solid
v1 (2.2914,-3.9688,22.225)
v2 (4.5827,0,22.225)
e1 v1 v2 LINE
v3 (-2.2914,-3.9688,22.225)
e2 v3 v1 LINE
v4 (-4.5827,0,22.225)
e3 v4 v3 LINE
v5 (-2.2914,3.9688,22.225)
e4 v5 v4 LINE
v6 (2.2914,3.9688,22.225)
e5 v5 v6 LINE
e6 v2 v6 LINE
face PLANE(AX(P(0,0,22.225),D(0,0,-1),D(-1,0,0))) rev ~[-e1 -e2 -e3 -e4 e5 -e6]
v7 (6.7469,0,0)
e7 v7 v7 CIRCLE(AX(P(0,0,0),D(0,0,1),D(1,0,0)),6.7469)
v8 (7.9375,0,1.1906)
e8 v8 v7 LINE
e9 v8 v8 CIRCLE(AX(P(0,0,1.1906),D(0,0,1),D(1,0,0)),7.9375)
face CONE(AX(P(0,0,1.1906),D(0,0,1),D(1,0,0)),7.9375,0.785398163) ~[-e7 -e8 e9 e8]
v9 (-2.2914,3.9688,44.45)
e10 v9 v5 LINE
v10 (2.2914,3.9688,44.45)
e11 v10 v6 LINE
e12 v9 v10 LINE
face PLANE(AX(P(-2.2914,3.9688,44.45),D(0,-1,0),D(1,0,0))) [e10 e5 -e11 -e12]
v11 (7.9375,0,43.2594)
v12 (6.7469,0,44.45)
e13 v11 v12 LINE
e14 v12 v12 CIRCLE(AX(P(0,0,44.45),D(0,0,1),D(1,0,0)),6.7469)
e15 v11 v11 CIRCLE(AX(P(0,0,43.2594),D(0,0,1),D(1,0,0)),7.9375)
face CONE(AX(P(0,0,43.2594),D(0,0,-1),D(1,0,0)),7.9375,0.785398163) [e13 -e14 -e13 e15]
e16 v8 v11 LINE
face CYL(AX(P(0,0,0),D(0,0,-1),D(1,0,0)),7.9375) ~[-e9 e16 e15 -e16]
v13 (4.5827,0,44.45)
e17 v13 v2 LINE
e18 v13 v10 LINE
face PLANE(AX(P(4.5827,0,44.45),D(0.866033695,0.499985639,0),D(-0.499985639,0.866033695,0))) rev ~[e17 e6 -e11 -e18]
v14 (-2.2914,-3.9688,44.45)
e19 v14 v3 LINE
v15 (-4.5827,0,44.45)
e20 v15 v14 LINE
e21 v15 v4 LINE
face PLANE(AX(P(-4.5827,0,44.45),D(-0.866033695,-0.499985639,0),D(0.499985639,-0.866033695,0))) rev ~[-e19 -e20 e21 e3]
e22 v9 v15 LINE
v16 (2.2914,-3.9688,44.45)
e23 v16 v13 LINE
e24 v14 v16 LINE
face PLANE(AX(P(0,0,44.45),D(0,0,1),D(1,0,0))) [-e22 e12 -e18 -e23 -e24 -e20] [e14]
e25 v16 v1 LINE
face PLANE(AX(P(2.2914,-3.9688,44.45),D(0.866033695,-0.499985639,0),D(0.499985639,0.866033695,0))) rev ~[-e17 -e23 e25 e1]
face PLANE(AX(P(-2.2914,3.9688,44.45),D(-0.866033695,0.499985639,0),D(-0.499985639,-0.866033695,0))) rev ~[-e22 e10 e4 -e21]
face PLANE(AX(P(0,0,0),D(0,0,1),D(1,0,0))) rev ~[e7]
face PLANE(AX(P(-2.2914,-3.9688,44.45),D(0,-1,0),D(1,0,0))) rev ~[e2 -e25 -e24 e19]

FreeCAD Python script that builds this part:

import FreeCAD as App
import Part
import Sketcher
Q = App.Units.Quantity


def edges_at(feature, points):
    """Names of the edges that pass closest to the given points."""
    edges = feature.Shape.Edges
    near = lambda p: min(range(len(edges)), key=lambda i: edges[i].distToShape(Part.Vertex(*p))[0])
    return sorted({f"Edge{near(p) + 1}" for p in points})


def add_polygon(sketch, points):
    """Adds a closed chain of lines whose ends are joined by coincident constraints."""
    first, n = sketch.GeometryCount, len(points)
    for a, b in zip(points, points[1:] + points[:1]):
        sketch.addGeometry(Part.LineSegment(App.Vector(*a, 0), App.Vector(*b, 0)), False)
    for i in range(n):
        sketch.addConstraint(Sketcher.Constraint("Coincident", first + i, 2, first + (i + 1) % n, 1))

doc = App.newDocument("Part")
body = doc.addObject("PartDesign::Body", "Body")

sketch1 = body.newObject("Sketcher::SketchObject", "Sketch")
sketch1.AttachmentSupport = (doc.getObject("XY_Plane"), [""])
sketch1.MapMode = "FlatFace"
sketch1.addGeometry(Part.Circle(App.Vector(0, 0, 0), App.Vector(0, 0, 1), 8), False)
sketch1.addConstraint([
    Sketcher.Constraint("Coincident", 0, 3, -1, 1),
    Sketcher.Constraint("Diameter", 0, Q("0.625 in")),
])
pad1 = body.newObject("PartDesign::Pad", "Pad")
pad1.Profile = sketch1
pad1.Length = Q("1.75 in")
doc.recompute()

chamfer = body.newObject("PartDesign::Chamfer", "Chamfer")
chamfer.Base = (pad1, edges_at(pad1, [(-7.938, 0, 0), (-7.938, 0, 44.45)]))
chamfer.Size = Q("0.046874 in")

sketch2 = body.newObject("Sketcher::SketchObject", "Sketch001")
sketch2.AttachmentSupport = (doc.getObject("XY_Plane"), [""])
sketch2.MapMode = "FlatFace"
sketch2.AttachmentOffset = App.Placement(App.Vector(0, 0, 1.75 * 25.4), App.Rotation())
add_polygon(sketch2, [(2.3, 4), (-2.3, 4), (-4.6, 0), (-2.3, -4), (2.3, -4), (4.6, 0)])
sketch2.addConstraint([
    Sketcher.Constraint("Horizontal", 0),
    Sketcher.Constraint("Horizontal", 3),
    Sketcher.Constraint("Symmetric", 0, 2, 3, 2, -1, 1),
    Sketcher.Constraint("Symmetric", 1, 2, 4, 2, -1, 1),
    Sketcher.Constraint("PointOnObject", 1, 2, -1),
    Sketcher.Constraint("Parallel", 2, 5),
    Sketcher.Constraint("Vertical", 0, 2, 2, 2),
    Sketcher.Constraint("Angle", 1, Q("-119.999 deg")),
    Sketcher.Constraint("DistanceY", -1, 1, 0, 2, Q("0.156252 in")),
    Sketcher.Constraint("DistanceX", 0, 2, 0, 1, Q("4.5828 mm")),
])
pocket1 = body.newObject("PartDesign::Pocket", "Pocket")
pocket1.Profile = sketch2
pocket1.Length = Q("0.875 in")

doc.recompute()
